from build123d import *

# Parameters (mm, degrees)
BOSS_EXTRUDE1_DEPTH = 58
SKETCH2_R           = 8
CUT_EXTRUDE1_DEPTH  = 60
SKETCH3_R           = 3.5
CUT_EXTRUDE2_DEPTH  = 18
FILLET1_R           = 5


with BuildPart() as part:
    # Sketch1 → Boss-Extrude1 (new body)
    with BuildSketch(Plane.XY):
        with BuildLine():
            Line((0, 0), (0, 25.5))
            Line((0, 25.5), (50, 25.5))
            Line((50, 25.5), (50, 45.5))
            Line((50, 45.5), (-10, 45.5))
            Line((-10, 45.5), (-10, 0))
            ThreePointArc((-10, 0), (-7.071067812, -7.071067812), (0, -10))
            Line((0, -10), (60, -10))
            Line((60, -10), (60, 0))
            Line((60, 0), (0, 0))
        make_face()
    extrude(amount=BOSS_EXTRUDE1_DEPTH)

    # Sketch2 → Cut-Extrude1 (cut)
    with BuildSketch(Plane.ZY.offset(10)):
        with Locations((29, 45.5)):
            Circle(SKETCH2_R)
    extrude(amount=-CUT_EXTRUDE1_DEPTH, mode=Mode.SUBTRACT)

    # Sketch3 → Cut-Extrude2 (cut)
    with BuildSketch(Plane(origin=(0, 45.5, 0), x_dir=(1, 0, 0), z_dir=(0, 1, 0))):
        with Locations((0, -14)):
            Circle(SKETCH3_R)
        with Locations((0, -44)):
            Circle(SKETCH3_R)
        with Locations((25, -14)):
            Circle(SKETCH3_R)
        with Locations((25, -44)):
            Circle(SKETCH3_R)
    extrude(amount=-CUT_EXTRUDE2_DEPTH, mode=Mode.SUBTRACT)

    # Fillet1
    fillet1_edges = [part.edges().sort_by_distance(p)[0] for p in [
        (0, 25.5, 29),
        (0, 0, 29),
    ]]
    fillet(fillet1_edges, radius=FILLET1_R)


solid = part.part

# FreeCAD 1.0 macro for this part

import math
import FreeCAD as App
import Part
import Sketcher
Q = App.Units.Quantity


def edges_at(feature, points):
    """Names of the edges that pass closest to the given points."""
    edges = feature.Shape.Edges
    near = lambda p: min(range(len(edges)), key=lambda i: edges[i].distToShape(Part.Vertex(*p))[0])
    return sorted({f"Edge{near(p) + 1}" for p in points})

doc = App.newDocument("Part")
params = doc.addObject("Spreadsheet::Sheet", "Params")
for row, (alias, value) in enumerate([
    ("sketch1_radius", "10 mm"),
    ("sketch1_width", "50 mm"),
    ("sketch1_height", "20 mm"),
    ("sketch1_height2", "25.5 mm"),
    ("pad1_length", "58 mm"),
    ("sketch2_diameter", "16 mm"),
    ("pocket1_length", "60 mm"),
    ("sketch3_diameter", "7 mm"),
    ("pocket2_length", "18 mm"),
    ("fillet_radius", "5 mm"),
], start=1):
    params.set(f"A{row}", alias)
    params.set(f"B{row}", "=" + value)
    params.setAlias(f"B{row}", alias)

body = doc.addObject("PartDesign::Body", "Body")

# Sketch on XY plane
sketch1 = doc.addObject("Sketcher::SketchObject", "Sketch")
body.addObject(sketch1)
sketch1.AttachmentSupport = (doc.XY_Plane, [""])
sketch1.MapMode = "FlatFace"
sketch1.addGeometry([
    Part.LineSegment(App.Vector(0, 0, 0), App.Vector(0, 25.5, 0)),  # 0
    Part.LineSegment(App.Vector(0, 25.5, 0), App.Vector(50, 25.5, 0)),  # 1
    Part.LineSegment(App.Vector(50, 25.5, 0), App.Vector(50, 45.5, 0)),  # 2
    Part.LineSegment(App.Vector(50, 45.5, 0), App.Vector(-10, 45.5, 0)),  # 3
    Part.LineSegment(App.Vector(-10, 45.5, 0), App.Vector(-10, 0, 0)),  # 4
    Part.ArcOfCircle(Part.Circle(App.Vector(0, 0, 0), App.Vector(0, 0, 1), 10), math.radians(180), math.radians(270)),  # 5
    Part.LineSegment(App.Vector(0, -10, 0), App.Vector(60, -10, 0)),  # 6
    Part.LineSegment(App.Vector(60, -10, 0), App.Vector(60, 0, 0)),  # 7
    Part.LineSegment(App.Vector(60, 0, 0), App.Vector(0, 0, 0)),  # 8
], False)
sketch1.addConstraint([
    Sketcher.Constraint("Coincident", 0, 2, 1, 1),
    Sketcher.Constraint("Coincident", 1, 2, 2, 1),
    Sketcher.Constraint("Coincident", 2, 2, 3, 1),
    Sketcher.Constraint("Coincident", 3, 2, 4, 1),
    Sketcher.Constraint("Tangent", 4, 2, 5, 1),
    Sketcher.Constraint("Tangent", 5, 2, 6, 1),
    Sketcher.Constraint("Coincident", 6, 2, 7, 1),
    Sketcher.Constraint("Coincident", 7, 2, 8, 1),
    Sketcher.Constraint("Coincident", 8, 2, 0, 1),
    Sketcher.Constraint("Vertical", 0),
    Sketcher.Constraint("Horizontal", 1),
    Sketcher.Constraint("Vertical", 2),
    Sketcher.Constraint("Horizontal", 3),
    Sketcher.Constraint("Vertical", 4),
    Sketcher.Constraint("Horizontal", 6),
    Sketcher.Constraint("Vertical", 7),
    Sketcher.Constraint("Horizontal", 8),
    Sketcher.Constraint("Coincident", 5, 3, -1, 1),
    Sketcher.Constraint("Coincident", 8, 2, -1, 1),
    Sketcher.Constraint("Equal", 3, 6),
    Sketcher.Constraint("Radius", 5, Q("10 mm")),
    Sketcher.Constraint("DistanceX", 1, 1, 1, 2, Q("50 mm")),
    Sketcher.Constraint("DistanceY", 2, 1, 2, 2, Q("20 mm")),
    Sketcher.Constraint("DistanceY", 0, 1, 0, 2, Q("25.5 mm")),
])
sketch1.setExpression("Constraints[20]", "Params.sketch1_radius")
sketch1.setExpression("Constraints[21]", "Params.sketch1_width")
sketch1.setExpression("Constraints[22]", "Params.sketch1_height")
sketch1.setExpression("Constraints[23]", "Params.sketch1_height2")
pad1 = doc.addObject("PartDesign::Pad", "Pad")
body.addObject(pad1)
pad1.Profile = sketch1
pad1.setExpression("Length", "Params.pad1_length")

# Sketch on YZ plane
sketch2 = doc.addObject("Sketcher::SketchObject", "Sketch001")
body.addObject(sketch2)
sketch2.AttachmentSupport = (doc.YZ_Plane, [""])
sketch2.MapMode = "FlatFace"
sketch2.AttachmentOffset = App.Placement(App.Vector(0, 0, -10), App.Rotation())
sketch2.addGeometry(Part.Circle(App.Vector(45.5, 29, 0), App.Vector(0, 0, 1), 8), False)
sketch2.addConstraint([
    Sketcher.Constraint("Diameter", 0, Q("16 mm")),
    Sketcher.Constraint("DistanceY", -1, 1, 0, 3, Q("29 mm")),
    Sketcher.Constraint("DistanceX", -1, 1, 0, 3, Q("45.5 mm")),
])
sketch2.setExpression("Constraints[0]", "Params.sketch2_diameter")
pocket1 = doc.addObject("PartDesign::Pocket", "Pocket")
body.addObject(pocket1)
pocket1.Profile = sketch2
pocket1.setExpression("Length", "Params.pocket1_length")
pocket1.Reversed = True

# Sketch on XZ plane
sketch3 = doc.addObject("Sketcher::SketchObject", "Sketch002")
body.addObject(sketch3)
sketch3.AttachmentSupport = (doc.XZ_Plane, [""])
sketch3.MapMode = "FlatFace"
sketch3.AttachmentOffset = App.Placement(App.Vector(0, 0, -45.5), App.Rotation())
sketch3.addGeometry([
    Part.Circle(App.Vector(0, 14, 0), App.Vector(0, 0, 1), 3.5),
    Part.Circle(App.Vector(0, 44, 0), App.Vector(0, 0, 1), 3.5),
    Part.Circle(App.Vector(25, 14, 0), App.Vector(0, 0, 1), 3.5),
    Part.Circle(App.Vector(25, 44, 0), App.Vector(0, 0, 1), 3.5),
], False)
sketch3.addConstraint([
    Sketcher.Constraint("Equal", 0, 1),
    Sketcher.Constraint("Equal", 1, 2),
    Sketcher.Constraint("Equal", 2, 3),
    Sketcher.Constraint("PointOnObject", 0, 3, -2),
    Sketcher.Constraint("PointOnObject", 1, 3, -2),
    Sketcher.Constraint("Horizontal", 0, 3, 2, 3),
    Sketcher.Constraint("Horizontal", 1, 3, 3, 3),
    Sketcher.Constraint("Vertical", 2, 3, 3, 3),
    Sketcher.Constraint("Diameter", 0, Q("7 mm")),
    Sketcher.Constraint("DistanceY", -1, 1, 0, 3, Q("14 mm")),
    Sketcher.Constraint("DistanceY", -1, 1, 1, 3, Q("44 mm")),
    Sketcher.Constraint("DistanceX", -1, 1, 2, 3, Q("25 mm")),
])
sketch3.setExpression("Constraints[8]", "Params.sketch3_diameter")
pocket2 = doc.addObject("PartDesign::Pocket", "Pocket001")
body.addObject(pocket2)
pocket2.Profile = sketch3
pocket2.setExpression("Length", "Params.pocket2_length")
pocket2.Reversed = True
doc.recompute()

fillet = doc.addObject("PartDesign::Fillet", "Fillet")
body.addObject(fillet)
fillet.Base = (pocket2, edges_at(pocket2, [(0, 25.5, 29), (0, 0, 29)]))
fillet.setExpression("Radius", "Params.fillet_radius")

doc.recompute()
